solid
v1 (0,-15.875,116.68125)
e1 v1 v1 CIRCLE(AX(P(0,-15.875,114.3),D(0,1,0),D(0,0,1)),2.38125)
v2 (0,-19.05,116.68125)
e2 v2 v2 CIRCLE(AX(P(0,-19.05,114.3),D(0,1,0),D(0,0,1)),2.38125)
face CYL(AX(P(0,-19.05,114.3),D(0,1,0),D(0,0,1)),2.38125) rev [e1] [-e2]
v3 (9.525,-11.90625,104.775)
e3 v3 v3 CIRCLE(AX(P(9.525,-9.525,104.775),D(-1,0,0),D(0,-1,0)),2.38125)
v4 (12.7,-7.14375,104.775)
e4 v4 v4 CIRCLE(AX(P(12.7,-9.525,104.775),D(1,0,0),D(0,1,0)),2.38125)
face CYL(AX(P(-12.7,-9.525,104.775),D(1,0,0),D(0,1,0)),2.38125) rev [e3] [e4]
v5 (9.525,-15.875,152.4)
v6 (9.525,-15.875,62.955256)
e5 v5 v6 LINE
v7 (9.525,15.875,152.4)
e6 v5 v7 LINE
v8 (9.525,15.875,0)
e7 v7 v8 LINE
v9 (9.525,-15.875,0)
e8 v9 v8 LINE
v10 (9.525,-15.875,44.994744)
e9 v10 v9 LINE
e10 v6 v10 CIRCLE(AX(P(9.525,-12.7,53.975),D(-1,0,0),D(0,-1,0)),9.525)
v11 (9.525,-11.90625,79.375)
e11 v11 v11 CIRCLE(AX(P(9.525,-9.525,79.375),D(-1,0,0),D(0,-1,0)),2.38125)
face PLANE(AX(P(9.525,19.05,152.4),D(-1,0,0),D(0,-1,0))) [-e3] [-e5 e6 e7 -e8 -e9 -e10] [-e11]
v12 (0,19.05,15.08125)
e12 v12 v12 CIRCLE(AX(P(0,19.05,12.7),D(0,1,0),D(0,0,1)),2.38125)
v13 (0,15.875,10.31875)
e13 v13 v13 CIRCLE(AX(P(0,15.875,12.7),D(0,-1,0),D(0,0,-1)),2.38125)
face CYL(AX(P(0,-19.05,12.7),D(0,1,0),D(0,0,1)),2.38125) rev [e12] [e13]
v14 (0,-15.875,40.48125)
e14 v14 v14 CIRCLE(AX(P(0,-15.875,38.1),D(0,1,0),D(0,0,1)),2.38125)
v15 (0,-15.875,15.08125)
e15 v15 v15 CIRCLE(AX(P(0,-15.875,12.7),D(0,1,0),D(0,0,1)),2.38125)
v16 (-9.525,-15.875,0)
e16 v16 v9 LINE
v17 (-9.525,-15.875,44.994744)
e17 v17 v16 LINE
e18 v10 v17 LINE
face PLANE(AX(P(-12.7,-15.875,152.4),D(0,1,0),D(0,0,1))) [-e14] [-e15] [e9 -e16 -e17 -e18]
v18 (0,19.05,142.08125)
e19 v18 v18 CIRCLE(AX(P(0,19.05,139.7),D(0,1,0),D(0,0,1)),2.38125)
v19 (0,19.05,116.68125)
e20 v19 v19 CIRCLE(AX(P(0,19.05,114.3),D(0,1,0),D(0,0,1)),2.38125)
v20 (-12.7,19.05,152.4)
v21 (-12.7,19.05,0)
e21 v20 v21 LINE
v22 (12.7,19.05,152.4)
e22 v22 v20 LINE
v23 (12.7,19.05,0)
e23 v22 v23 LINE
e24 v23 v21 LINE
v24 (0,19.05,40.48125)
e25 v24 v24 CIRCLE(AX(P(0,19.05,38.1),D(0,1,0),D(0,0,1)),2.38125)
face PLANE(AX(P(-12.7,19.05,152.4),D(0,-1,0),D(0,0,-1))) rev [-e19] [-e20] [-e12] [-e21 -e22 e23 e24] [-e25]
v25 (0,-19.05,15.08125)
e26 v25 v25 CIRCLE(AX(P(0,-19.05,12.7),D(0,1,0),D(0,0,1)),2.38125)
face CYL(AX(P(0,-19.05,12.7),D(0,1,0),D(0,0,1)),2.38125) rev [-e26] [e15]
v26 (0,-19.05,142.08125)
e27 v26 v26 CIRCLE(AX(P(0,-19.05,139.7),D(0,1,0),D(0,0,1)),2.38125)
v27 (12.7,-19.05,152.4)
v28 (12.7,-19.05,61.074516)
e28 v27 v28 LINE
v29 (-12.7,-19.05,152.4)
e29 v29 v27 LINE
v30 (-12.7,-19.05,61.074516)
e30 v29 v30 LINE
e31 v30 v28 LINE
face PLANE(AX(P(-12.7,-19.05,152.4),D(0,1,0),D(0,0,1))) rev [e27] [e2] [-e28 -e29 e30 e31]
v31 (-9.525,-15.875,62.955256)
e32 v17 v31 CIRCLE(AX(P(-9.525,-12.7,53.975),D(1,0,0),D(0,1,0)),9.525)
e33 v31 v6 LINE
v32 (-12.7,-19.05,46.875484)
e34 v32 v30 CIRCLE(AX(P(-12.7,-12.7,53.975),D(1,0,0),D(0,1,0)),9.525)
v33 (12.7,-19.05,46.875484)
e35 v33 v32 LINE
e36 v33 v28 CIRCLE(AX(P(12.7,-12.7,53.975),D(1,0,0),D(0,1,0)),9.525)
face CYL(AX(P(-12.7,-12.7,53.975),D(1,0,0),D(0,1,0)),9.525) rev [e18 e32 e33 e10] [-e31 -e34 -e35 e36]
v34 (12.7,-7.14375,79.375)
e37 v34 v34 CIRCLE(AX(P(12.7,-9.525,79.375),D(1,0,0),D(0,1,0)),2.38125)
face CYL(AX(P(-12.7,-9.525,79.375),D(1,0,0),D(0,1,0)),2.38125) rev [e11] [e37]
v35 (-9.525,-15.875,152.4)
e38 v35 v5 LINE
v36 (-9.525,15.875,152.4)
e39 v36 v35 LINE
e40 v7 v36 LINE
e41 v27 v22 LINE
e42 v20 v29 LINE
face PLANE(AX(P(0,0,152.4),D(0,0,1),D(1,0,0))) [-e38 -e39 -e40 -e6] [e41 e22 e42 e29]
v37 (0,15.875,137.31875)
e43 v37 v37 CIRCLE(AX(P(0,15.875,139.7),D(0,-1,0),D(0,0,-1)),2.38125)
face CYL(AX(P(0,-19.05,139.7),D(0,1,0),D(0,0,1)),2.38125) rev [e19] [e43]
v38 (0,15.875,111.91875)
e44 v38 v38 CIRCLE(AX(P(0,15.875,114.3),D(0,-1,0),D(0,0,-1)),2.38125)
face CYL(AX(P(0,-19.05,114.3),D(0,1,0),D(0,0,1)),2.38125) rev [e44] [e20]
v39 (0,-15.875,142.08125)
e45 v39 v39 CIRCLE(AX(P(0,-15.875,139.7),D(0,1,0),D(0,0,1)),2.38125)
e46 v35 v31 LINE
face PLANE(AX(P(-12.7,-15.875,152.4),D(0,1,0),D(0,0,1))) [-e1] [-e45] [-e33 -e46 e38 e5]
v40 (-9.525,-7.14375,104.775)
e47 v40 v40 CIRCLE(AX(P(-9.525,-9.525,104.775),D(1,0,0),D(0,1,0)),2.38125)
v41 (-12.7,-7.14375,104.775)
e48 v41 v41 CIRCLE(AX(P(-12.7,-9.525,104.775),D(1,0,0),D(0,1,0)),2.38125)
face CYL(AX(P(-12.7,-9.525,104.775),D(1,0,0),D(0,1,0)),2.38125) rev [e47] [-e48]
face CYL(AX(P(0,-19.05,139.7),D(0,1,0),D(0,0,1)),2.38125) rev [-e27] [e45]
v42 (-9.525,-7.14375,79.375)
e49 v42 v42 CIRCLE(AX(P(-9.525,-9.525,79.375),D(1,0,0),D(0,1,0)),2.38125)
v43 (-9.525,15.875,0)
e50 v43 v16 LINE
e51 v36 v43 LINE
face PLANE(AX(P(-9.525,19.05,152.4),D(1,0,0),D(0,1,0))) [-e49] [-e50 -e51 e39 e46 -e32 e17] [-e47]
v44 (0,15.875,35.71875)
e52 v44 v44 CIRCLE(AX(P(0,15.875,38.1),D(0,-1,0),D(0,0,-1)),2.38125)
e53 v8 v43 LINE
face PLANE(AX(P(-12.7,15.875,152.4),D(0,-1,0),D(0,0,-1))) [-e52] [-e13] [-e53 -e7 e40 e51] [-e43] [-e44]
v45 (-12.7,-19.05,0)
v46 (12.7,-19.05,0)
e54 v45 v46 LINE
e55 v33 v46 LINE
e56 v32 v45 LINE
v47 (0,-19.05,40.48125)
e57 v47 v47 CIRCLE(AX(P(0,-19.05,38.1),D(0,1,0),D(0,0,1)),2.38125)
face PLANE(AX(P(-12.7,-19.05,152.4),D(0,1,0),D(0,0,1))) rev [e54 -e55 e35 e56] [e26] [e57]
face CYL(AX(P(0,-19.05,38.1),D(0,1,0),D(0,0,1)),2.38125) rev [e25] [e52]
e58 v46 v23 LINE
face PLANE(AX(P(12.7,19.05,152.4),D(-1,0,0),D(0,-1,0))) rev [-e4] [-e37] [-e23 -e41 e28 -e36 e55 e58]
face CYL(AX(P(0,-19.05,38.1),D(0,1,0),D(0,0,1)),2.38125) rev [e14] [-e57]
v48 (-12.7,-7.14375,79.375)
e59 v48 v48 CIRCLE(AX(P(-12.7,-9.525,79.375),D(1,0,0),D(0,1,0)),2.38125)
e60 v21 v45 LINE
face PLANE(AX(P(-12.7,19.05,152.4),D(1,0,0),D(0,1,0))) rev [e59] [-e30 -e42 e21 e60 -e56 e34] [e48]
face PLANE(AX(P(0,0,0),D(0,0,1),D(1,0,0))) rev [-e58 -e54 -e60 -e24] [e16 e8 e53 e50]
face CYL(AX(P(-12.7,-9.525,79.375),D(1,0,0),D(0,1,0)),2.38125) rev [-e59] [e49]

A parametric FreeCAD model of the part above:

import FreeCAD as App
import Part
import Sketcher
from FreeCAD import Vector
Q = App.Units.Quantity


def faces_at(feature, points):
    """Names of the faces that lie closest to the given points."""
    faces = feature.Shape.Faces
    near = lambda p: min(range(len(faces)), key=lambda i: faces[i].distToShape(Part.Vertex(*p))[0])
    return sorted({f"Face{near(p) + 1}" for p in points})


def add_polygon(sketch, points):
    """Adds a closed chain of lines whose ends are joined by coincident constraints."""
    first, n = sketch.GeometryCount, len(points)
    for a, b in zip(points, points[1:] + points[:1]):
        sketch.addGeometry(Part.LineSegment(App.Vector(*a, 0), App.Vector(*b, 0)), False)
    for i in range(n):
        sketch.addConstraint(Sketcher.Constraint("Coincident", first + i, 2, first + (i + 1) % n, 1))

doc = App.newDocument("Part")
body = doc.addObject("PartDesign::Body", "Body")

# Sketch on XY plane
sketch1 = body.newObject("Sketcher::SketchObject", "Sketch")
sketch1.AttachmentSupport = (doc.getObject("XY_Plane"), [""])
sketch1.MapMode = "FlatFace"
add_polygon(sketch1, [(-13, 19), (-13, -19), (13, -19), (13, 19)])  # lines 0-3
sketch1.addConstraint([
    Sketcher.Constraint("Vertical", 0),
    Sketcher.Constraint("Horizontal", 1),
    Sketcher.Constraint("Vertical", 2),
    Sketcher.Constraint("Horizontal", 3),
    Sketcher.Constraint("Symmetric", 0, 2, 2, 2, -1, 1),
    Sketcher.Constraint("DistanceX", 1, 1, 1, 2, Q("1 in")),
    Sketcher.Constraint("DistanceY", 0, 2, 0, 1, Q("1.5 in")),
])
pad1 = body.newObject("PartDesign::Pad", "Pad")
pad1.Profile = sketch1
pad1.Length = Q("6 in")
doc.recompute()

thickness = body.newObject("PartDesign::Thickness", "Thickness")
thickness.Base = (pad1, faces_at(pad1, [(0, 0, 152.4), (0, 0, 0)]))
thickness.Value = Q("0.125 in")
thickness.Reversed = True
thickness.Join = "Intersection"

# Sketch on YZ plane
sketch2 = body.newObject("Sketcher::SketchObject", "Sketch001")
sketch2.AttachmentSupport = (doc.getObject("YZ_Plane"), [""])
sketch2.MapMode = "FlatFace"
sketch2.AttachmentOffset = App.Placement(Vector(0, 0, 0.5 * 25.4), App.Rotation())
sketch2.addGeometry(Part.Circle(Vector(-13, 54, 0), Vector(0, 0, 1), 10), False)
sketch2.addConstraint([
    Sketcher.Constraint("Diameter", 0, Q("0.75 in")),
    Sketcher.Constraint("DistanceX", 0, 3, -1, 1, Q("0.5 in")),
    Sketcher.Constraint("DistanceY", -1, 1, 0, 3, Q("2.125 in")),
])
pocket1 = body.newObject("PartDesign::Pocket", "Pocket")
pocket1.Profile = sketch2
pocket1.Type = "ThroughAll"

# Sketch on XZ plane
sketch3 = body.newObject("Sketcher::SketchObject", "Sketch002")
sketch3.AttachmentSupport = (doc.getObject("XZ_Plane"), [""])
sketch3.MapMode = "FlatFace"
sketch3.AttachmentOffset = App.Placement(Vector(0, 0, -0.75 * 25.4), App.Rotation())
sketch3.addGeometry([
    Part.Circle(Vector(0, 139.7, 0), Vector(0, 0, 1), 2.4),
    Part.Circle(Vector(0, 114.3, 0), Vector(0, 0, 1), 2.4),
], False)
sketch3.addConstraint([
    Sketcher.Constraint("Equal", 0, 1),
    Sketcher.Constraint("PointOnObject", 0, 3, -2),
    Sketcher.Constraint("PointOnObject", 1, 3, -2),
    Sketcher.Constraint("Diameter", 0, Q("0.1875 in")),
    Sketcher.Constraint("DistanceY", 1, 3, 0, 3, Q("1 in")),
    Sketcher.Constraint("DistanceY", -1, 1, 0, 3, Q("5.5 in")),
])
pocket2 = body.newObject("PartDesign::Pocket", "Pocket001")
pocket2.Profile = sketch3
pocket2.Type = "ThroughAll"
pocket2.Reversed = True

# Sketch on YZ plane
sketch4 = body.newObject("Sketcher::SketchObject", "Sketch003")
sketch4.AttachmentSupport = (doc.getObject("YZ_Plane"), [""])
sketch4.MapMode = "FlatFace"
sketch4.AttachmentOffset = App.Placement(Vector(0, 0, 0.5 * 25.4), App.Rotation())
sketch4.addGeometry([
    Part.Circle(Vector(-9.5, 79.4, 0), Vector(0, 0, 1), 2.4),
    Part.Circle(Vector(-9.5, 104.8, 0), Vector(0, 0, 1), 2.4),
], False)
sketch4.addConstraint([
    Sketcher.Constraint("Equal", 0, 1),
    Sketcher.Constraint("Vertical", 0, 3, 1, 3),
    Sketcher.Constraint("Diameter", 0, Q("0.1875 in")),
    Sketcher.Constraint("DistanceY", 0, 3, 1, 3, Q("1 in")),
    Sketcher.Constraint("DistanceX", 0, 3, -1, 1, Q("0.375 in")),
    Sketcher.Constraint("DistanceY", -1, 1, 0, 3, Q("3.125 in")),
])
pocket3 = body.newObject("PartDesign::Pocket", "Pocket002")
pocket3.Profile = sketch4
pocket3.Type = "ThroughAll"

# Sketch on XZ plane
sketch5 = body.newObject("Sketcher::SketchObject", "Sketch004")
sketch5.AttachmentSupport = (doc.getObject("XZ_Plane"), [""])
sketch5.MapMode = "FlatFace"
sketch5.AttachmentOffset = App.Placement(Vector(0, 0, -0.75 * 25.4), App.Rotation())
sketch5.addGeometry([
    Part.Circle(Vector(0, 12.7, 0), Vector(0, 0, 1), 2.4),
    Part.Circle(Vector(0, 38.1, 0), Vector(0, 0, 1), 2.4),
], False)
sketch5.addConstraint([
    Sketcher.Constraint("Equal", 0, 1),
    Sketcher.Constraint("PointOnObject", 0, 3, -2),
    Sketcher.Constraint("PointOnObject", 1, 3, -2),
    Sketcher.Constraint("Diameter", 0, Q("0.1875 in")),
    Sketcher.Constraint("DistanceY", 0, 3, 1, 3, Q("1 in")),
    Sketcher.Constraint("DistanceY", -1, 1, 0, 3, Q("0.5 in")),
])
pocket4 = body.newObject("PartDesign::Pocket", "Pocket003")
pocket4.Profile = sketch5
pocket4.Type = "ThroughAll"
pocket4.Reversed = True

doc.recompute()
